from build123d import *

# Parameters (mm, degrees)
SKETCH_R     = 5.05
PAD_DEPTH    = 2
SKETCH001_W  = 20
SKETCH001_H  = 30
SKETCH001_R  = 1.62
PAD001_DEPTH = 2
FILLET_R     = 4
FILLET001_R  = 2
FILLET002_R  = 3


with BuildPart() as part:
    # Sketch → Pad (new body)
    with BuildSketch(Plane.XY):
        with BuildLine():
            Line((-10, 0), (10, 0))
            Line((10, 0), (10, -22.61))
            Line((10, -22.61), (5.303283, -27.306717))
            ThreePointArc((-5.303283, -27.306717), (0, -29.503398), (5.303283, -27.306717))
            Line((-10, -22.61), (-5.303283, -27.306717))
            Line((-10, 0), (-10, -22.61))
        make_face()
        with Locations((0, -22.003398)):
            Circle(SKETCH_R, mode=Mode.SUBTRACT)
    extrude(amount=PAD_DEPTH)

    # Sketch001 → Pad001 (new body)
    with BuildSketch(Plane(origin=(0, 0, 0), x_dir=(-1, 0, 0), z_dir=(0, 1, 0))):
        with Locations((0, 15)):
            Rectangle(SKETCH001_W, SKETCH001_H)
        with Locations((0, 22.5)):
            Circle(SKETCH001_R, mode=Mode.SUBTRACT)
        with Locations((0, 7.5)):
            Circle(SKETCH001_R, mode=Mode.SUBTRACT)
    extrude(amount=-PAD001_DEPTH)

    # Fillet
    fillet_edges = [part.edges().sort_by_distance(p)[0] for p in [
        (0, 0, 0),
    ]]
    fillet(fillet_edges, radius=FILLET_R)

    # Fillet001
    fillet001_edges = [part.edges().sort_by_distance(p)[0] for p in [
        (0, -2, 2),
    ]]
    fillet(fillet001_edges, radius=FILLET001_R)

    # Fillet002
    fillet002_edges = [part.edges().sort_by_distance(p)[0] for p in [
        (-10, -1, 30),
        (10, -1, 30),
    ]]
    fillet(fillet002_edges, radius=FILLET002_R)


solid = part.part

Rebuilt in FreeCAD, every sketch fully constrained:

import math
import FreeCAD as App
import Part
import Sketcher
from FreeCAD import Vector
Q = App.Units.Quantity


def edges_at(feature, points):
    """Names of the edges that pass closest to the given points."""
    edges = feature.Shape.Edges
    near = lambda p: min(range(len(edges)), key=lambda i: edges[i].distToShape(Part.Vertex(*p))[0])
    return sorted({f"Edge{near(p) + 1}" for p in points})

doc = App.newDocument("Part")
body = doc.addObject("PartDesign::Body", "Body")

sketch1 = body.newObject("Sketcher::SketchObject", "Sketch")
sketch1.AttachmentSupport = (doc.getObject("XY_Plane"), [""])
sketch1.MapMode = "FlatFace"
sketch1.addGeometry(Part.LineSegment(Vector(10, 0, 0), Vector(-10, 0, 0)), False)
sketch1.addGeometry(Part.LineSegment(Vector(-10, 0, 0), Vector(-10, -23, 0)), False)
sketch1.addGeometry(Part.LineSegment(Vector(-10, -23, 0), Vector(-5, -27, 0)), False)
sketch1.addGeometry(Part.ArcOfCircle(Part.Circle(Vector(0, -22, 0), Vector(0, 0, 1), 8), math.radians(-135), math.radians(-45)), False)
sketch1.addGeometry(Part.LineSegment(Vector(5, -27, 0), Vector(10, -23, 0)), False)
sketch1.addGeometry(Part.LineSegment(Vector(10, -23, 0), Vector(10, 0, 0)), False)
sketch1.addGeometry(Part.Circle(Vector(0, -22, 0), Vector(0, 0, 1), 5), False)
sketch1.addConstraint(Sketcher.Constraint("Coincident", 0, 2, 1, 1))
sketch1.addConstraint(Sketcher.Constraint("Coincident", 1, 2, 2, 1))
sketch1.addConstraint(Sketcher.Constraint("Coincident", 2, 2, 3, 1))
sketch1.addConstraint(Sketcher.Constraint("Coincident", 3, 2, 4, 1))
sketch1.addConstraint(Sketcher.Constraint("Coincident", 4, 2, 5, 1))
sketch1.addConstraint(Sketcher.Constraint("Coincident", 5, 2, 0, 1))
sketch1.addConstraint(Sketcher.Constraint("Horizontal", 0))
sketch1.addConstraint(Sketcher.Constraint("Vertical", 1))
sketch1.addConstraint(Sketcher.Constraint("Vertical", 5))
sketch1.addConstraint(Sketcher.Constraint("Coincident", 6, 3, 3, 3))
sketch1.addConstraint(Sketcher.Constraint("Symmetric", 0, 2, 5, 2, -1, 1))
sketch1.addConstraint(Sketcher.Constraint("Symmetric", 2, 2, 3, 2, -2))
sketch1.addConstraint(Sketcher.Constraint("Perpendicular", 2, 4))
sketch1.addConstraint(Sketcher.Constraint("Horizontal", 1, 2, 4, 2))
sketch1.addConstraint(Sketcher.Constraint("Diameter", 6, Q("10.1 mm")))
sketch1.addConstraint(Sketcher.Constraint("Radius", 3, Q("7.500001 mm")))
sketch1.addConstraint(Sketcher.Constraint("DistanceX", 0, 2, 0, 1, Q("20 mm")))
sketch1.addConstraint(Sketcher.Constraint("DistanceY", 1, 2, 1, 1, Q("22.61 mm")))
sketch1.addConstraint(Sketcher.Constraint("Distance", 2, Q("6.642161 mm")))
pad1 = body.newObject("PartDesign::Pad", "Pad")
pad1.Profile = sketch1
pad1.Length = 2

sketch2 = body.newObject("Sketcher::SketchObject", "Sketch001")
sketch2.AttachmentSupport = (doc.getObject("XZ_Plane"), [""])
sketch2.MapMode = "FlatFace"
sketch2.addGeometry(Part.LineSegment(Vector(10, 30, 0), Vector(10, 0, 0)), False)
sketch2.addGeometry(Part.LineSegment(Vector(10, 0, 0), Vector(-10, 0, 0)), False)
sketch2.addGeometry(Part.LineSegment(Vector(-10, 0, 0), Vector(-10, 30, 0)), False)
sketch2.addGeometry(Part.LineSegment(Vector(-10, 30, 0), Vector(10, 30, 0)), False)
sketch2.addGeometry(Part.Circle(Vector(0, 7.5, 0), Vector(0, 0, 1), 1.6), False)
sketch2.addGeometry(Part.Circle(Vector(0, 22.5, 0), Vector(0, 0, 1), 1.6), False)
sketch2.addConstraint(Sketcher.Constraint("Coincident", 0, 2, 1, 1))
sketch2.addConstraint(Sketcher.Constraint("Coincident", 1, 2, 2, 1))
sketch2.addConstraint(Sketcher.Constraint("Coincident", 2, 2, 3, 1))
sketch2.addConstraint(Sketcher.Constraint("Coincident", 3, 2, 0, 1))
sketch2.addConstraint(Sketcher.Constraint("Vertical", 0))
sketch2.addConstraint(Sketcher.Constraint("Horizontal", 1))
sketch2.addConstraint(Sketcher.Constraint("Vertical", 2))
sketch2.addConstraint(Sketcher.Constraint("Horizontal", 3))
sketch2.addConstraint(Sketcher.Constraint("Equal", 4, 5))
sketch2.addConstraint(Sketcher.Constraint("Symmetric", 0, 2, 1, 2, -1, 1))
sketch2.addConstraint(Sketcher.Constraint("PointOnObject", 4, 3, -2))
sketch2.addConstraint(Sketcher.Constraint("PointOnObject", 5, 3, -2))
sketch2.addConstraint(Sketcher.Constraint("Diameter", 4, Q("3.24 mm")))
sketch2.addConstraint(Sketcher.Constraint("DistanceX", 1, 2, 1, 1, Q("20 mm")))
sketch2.addConstraint(Sketcher.Constraint("DistanceY", 0, 2, 0, 1, Q("30 mm")))
sketch2.addConstraint(Sketcher.Constraint("DistanceY", 4, 3, 5, 3, Q("15 mm")))
sketch2.addConstraint(Sketcher.Constraint("DistanceY", -1, 1, 4, 3, Q("7.5 mm")))
pad2 = body.newObject("PartDesign::Pad", "Pad001")
pad2.Profile = sketch2
pad2.Length = 2
doc.recompute()

fillet = body.newObject("PartDesign::Fillet", "Fillet")
fillet.Base = (pad2, edges_at(pad2, [(0, 0, 0)]))
fillet.Radius = 4
doc.recompute()

fillet2 = body.newObject("PartDesign::Fillet", "Fillet001")
fillet2.Base = (fillet, edges_at(fillet, [(0, -2, 2)]))
fillet2.Radius = 2
doc.recompute()

fillet3 = body.newObject("PartDesign::Fillet", "Fillet002")
fillet3.Base = (fillet2, edges_at(fillet2, [(-10, -1, 30), (10, -1, 30)]))
fillet3.Radius = 3

doc.recompute()
